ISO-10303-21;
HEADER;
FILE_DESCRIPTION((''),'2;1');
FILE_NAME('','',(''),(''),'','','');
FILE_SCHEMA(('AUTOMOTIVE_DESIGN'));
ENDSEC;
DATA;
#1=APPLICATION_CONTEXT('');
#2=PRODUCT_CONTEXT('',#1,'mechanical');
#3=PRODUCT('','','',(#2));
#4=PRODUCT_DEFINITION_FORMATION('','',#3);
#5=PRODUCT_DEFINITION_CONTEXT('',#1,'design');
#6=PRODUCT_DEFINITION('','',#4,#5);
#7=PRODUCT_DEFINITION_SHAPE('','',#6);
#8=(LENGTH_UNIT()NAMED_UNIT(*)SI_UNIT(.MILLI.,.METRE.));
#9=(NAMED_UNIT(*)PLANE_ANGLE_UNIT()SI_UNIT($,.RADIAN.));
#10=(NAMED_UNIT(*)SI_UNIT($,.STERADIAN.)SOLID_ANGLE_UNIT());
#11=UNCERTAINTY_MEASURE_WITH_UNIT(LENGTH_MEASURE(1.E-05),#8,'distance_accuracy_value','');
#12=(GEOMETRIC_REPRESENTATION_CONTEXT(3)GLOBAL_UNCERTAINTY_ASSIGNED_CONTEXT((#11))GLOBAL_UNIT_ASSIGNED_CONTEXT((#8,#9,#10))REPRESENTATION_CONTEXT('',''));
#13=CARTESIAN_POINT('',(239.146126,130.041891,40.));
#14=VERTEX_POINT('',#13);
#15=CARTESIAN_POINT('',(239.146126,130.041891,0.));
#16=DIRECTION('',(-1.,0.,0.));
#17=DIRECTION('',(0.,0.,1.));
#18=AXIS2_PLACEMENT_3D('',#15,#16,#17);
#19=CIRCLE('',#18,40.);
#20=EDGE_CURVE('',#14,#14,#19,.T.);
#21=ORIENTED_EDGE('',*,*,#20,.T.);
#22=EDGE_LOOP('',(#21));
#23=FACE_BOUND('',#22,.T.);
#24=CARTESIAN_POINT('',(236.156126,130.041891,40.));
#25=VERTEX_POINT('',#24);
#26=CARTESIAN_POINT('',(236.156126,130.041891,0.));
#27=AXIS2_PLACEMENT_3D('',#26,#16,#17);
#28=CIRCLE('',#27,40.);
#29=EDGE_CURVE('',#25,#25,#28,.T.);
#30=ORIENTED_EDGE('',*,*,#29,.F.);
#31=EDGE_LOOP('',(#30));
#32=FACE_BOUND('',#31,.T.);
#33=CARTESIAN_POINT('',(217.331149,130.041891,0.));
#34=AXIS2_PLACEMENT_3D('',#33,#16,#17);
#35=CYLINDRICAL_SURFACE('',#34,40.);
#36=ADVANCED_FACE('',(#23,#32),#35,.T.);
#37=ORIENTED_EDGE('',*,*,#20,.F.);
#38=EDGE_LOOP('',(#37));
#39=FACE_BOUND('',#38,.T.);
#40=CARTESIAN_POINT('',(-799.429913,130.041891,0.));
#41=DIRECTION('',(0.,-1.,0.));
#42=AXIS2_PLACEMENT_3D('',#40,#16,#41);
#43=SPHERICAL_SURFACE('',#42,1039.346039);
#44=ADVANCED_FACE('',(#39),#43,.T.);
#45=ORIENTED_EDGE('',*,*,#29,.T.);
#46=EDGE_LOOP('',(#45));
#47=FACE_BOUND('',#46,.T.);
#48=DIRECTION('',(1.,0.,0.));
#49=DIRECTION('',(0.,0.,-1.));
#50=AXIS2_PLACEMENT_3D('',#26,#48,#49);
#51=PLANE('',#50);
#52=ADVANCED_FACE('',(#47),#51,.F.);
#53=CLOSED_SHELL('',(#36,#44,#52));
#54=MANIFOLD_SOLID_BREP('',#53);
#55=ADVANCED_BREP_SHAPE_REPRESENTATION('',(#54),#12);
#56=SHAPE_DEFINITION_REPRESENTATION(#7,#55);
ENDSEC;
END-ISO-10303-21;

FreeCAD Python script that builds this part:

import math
import FreeCAD as App
import Part
import Sketcher
from FreeCAD import Vector
Q = App.Units.Quantity

doc = App.newDocument("Part")
body = doc.addObject("PartDesign::Body", "Body")

# Sketch on XY plane
sketch1 = body.newObject("Sketcher::SketchObject", "Sketch")
sketch1.AttachmentSupport = (doc.getObject("XY_Plane"), [""])
sketch1.MapMode = "FlatFace"
sketch1.addGeometry([
    Part.LineSegment(Vector(236.2, 170, 0), Vector(236.2, 130, 0)),
    Part.LineSegment(Vector(236.2, 130, 0), Vector(239.9, 130, 0)),
    Part.ArcOfCircle(Part.Circle(Vector(-799.4, 130, 0), Vector(0, 0, 1), 1039.3), math.radians(0), math.radians(2.21)),
    Part.LineSegment(Vector(239.1, 170, 0), Vector(236.2, 170, 0)),
], False)
sketch1.addGeometry(Part.LineSegment(Vector(-799.4, 130, 0), Vector(239.9, 130, 0)), True)  # axis
sketch1.addConstraint([
    Sketcher.Constraint("Coincident", 0, 2, 1, 1),
    Sketcher.Constraint("Coincident", 1, 2, 2, 1),
    Sketcher.Constraint("Coincident", 2, 2, 3, 1),
    Sketcher.Constraint("Coincident", 3, 2, 0, 1),
    Sketcher.Constraint("Vertical", 0),
    Sketcher.Constraint("Horizontal", 1),
    Sketcher.Constraint("Horizontal", 3),
    Sketcher.Constraint("Horizontal", 4),
    Sketcher.Constraint("Coincident", 4, 1, 2, 3),
    Sketcher.Constraint("Coincident", 4, 2, 1, 2),
    Sketcher.Constraint("DistanceY", 0, 2, 0, 1, Q("40 mm")),
    Sketcher.Constraint("DistanceX", 1, 1, 1, 2, Q("3.76 mm")),
    Sketcher.Constraint("Radius", 2, Q("1039.346039 mm")),
    Sketcher.Constraint("DistanceY", -1, 1, 2, 3, Q("130.041891 mm")),
    Sketcher.Constraint("DistanceX", 2, 3, -1, 1, Q("799.429913 mm")),
])
revolution = body.newObject("PartDesign::Revolution", "Revolution")
revolution.Profile = sketch1
revolution.ReferenceAxis = (sketch1, ["Axis0"])
revolution.Angle = 360

doc.recompute()
